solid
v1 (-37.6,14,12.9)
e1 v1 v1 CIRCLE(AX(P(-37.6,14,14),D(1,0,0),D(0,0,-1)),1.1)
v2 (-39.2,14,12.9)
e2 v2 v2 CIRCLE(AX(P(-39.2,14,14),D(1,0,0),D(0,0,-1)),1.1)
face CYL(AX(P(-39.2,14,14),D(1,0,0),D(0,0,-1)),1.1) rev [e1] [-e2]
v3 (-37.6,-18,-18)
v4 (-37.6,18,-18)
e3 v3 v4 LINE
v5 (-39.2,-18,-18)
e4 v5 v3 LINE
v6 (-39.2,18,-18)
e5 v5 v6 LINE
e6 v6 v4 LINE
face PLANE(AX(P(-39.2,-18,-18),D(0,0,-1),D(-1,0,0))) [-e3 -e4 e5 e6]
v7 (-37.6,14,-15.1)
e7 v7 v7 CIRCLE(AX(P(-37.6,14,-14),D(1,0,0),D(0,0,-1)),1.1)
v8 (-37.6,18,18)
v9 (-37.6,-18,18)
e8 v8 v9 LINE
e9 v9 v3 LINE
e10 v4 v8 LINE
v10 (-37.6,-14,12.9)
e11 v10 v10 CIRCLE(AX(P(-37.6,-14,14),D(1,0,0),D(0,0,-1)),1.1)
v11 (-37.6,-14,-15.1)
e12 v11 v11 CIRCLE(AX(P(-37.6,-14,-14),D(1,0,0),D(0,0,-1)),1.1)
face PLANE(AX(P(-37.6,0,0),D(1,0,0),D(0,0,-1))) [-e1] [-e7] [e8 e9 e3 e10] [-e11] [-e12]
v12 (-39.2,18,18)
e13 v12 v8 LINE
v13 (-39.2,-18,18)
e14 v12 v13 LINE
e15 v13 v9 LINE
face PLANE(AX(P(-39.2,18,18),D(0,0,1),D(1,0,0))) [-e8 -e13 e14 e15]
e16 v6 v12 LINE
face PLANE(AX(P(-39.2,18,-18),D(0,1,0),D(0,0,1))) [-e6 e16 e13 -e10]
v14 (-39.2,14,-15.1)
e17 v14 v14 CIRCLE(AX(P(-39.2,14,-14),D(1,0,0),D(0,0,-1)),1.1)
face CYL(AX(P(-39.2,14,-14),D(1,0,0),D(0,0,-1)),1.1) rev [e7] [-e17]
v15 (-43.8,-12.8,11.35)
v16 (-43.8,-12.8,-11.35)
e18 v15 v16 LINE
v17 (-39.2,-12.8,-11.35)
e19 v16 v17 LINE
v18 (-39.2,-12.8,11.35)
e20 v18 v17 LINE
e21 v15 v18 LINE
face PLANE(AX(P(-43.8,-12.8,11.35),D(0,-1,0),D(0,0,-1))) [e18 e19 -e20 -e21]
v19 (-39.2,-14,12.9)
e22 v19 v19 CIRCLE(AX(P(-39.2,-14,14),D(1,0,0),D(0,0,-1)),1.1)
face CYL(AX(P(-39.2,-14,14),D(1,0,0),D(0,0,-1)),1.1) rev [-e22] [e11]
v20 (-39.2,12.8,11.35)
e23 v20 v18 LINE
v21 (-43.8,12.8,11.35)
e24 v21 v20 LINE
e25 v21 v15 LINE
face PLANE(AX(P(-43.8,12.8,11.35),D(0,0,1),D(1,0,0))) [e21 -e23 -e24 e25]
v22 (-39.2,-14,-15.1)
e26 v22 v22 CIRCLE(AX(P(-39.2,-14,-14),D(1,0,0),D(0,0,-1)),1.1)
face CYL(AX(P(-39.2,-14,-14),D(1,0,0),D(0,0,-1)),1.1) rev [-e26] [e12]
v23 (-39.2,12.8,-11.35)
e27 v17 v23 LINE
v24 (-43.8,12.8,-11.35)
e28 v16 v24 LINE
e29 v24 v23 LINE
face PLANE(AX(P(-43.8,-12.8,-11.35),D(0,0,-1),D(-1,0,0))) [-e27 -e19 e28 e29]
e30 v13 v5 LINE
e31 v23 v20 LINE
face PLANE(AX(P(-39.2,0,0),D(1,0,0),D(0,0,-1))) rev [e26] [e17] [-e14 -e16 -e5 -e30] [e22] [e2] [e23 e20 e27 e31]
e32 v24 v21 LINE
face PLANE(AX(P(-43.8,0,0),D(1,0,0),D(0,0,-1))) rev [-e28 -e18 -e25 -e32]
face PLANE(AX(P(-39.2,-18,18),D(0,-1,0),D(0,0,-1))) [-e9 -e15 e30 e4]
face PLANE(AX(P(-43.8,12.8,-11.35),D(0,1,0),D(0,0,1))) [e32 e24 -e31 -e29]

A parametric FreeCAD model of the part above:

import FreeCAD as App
import Part
import Sketcher
from FreeCAD import Vector


def add_polygon(sketch, points):
    """Adds a closed chain of lines whose ends are joined by coincident constraints."""
    first, n = sketch.GeometryCount, len(points)
    for a, b in zip(points, points[1:] + points[:1]):
        sketch.addGeometry(Part.LineSegment(App.Vector(*a, 0), App.Vector(*b, 0)), False)
    for i in range(n):
        sketch.addConstraint(Sketcher.Constraint("Coincident", first + i, 2, first + (i + 1) % n, 1))

doc = App.newDocument("Part")
body = doc.addObject("PartDesign::Body", "Body")

# Sketch on YZ plane
sketch1 = body.newObject("Sketcher::SketchObject", "Sketch")
sketch1.AttachmentSupport = (doc.getObject("YZ_Plane"), [""])
sketch1.MapMode = "FlatFace"
sketch1.AttachmentOffset = App.Placement(Vector(0, 0, -37.6), App.Rotation())
add_polygon(sketch1, [(18, 18), (-18, 18), (-18, -18), (18, -18)])  # lines 0-3
sketch1.addGeometry(Part.Circle(Vector(-14, 14, 0), Vector(0, 0, 1), 1.1), False)  # 4
sketch1.addGeometry(Part.Circle(Vector(-14, -14, 0), Vector(0, 0, 1), 1.1), False)  # 5
sketch1.addGeometry(Part.Circle(Vector(14, 14, 0), Vector(0, 0, 1), 1.1), False)  # 6
sketch1.addGeometry(Part.Circle(Vector(14, -14, 0), Vector(0, 0, 1), 1.1), False)  # 7
sketch1.addConstraint([
    Sketcher.Constraint("Horizontal", 0),
    Sketcher.Constraint("Vertical", 1),
    Sketcher.Constraint("Horizontal", 2),
    Sketcher.Constraint("Vertical", 3),
    Sketcher.Constraint("Equal", 4, 5),
    Sketcher.Constraint("Equal", 5, 6),
    Sketcher.Constraint("Equal", 6, 7),
    Sketcher.Constraint("Symmetric", 5, 3, 6, 3, -1, 1),
    Sketcher.Constraint("Symmetric", 4, 3, 7, 3, -1, 1),
    Sketcher.Constraint("Symmetric", 0, 2, 2, 2, -1, 1),
    Sketcher.Constraint("Symmetric", 4, 3, 6, 3, -2),
    Sketcher.Constraint("Equal", 2, 1),
    Sketcher.Constraint("Diameter", 4, 2.2),
    Sketcher.Constraint("DistanceX", 0, 2, 0, 1, 36.0),
    Sketcher.Constraint("DistanceX", 4, 3, -1, 1, 14.0),
    Sketcher.Constraint("DistanceY", -1, 1, 4, 3, 14.0),
])
pad1 = body.newObject("PartDesign::Pad", "Pad")
pad1.Profile = sketch1
pad1.Length = 1.6
pad1.Reversed = True

# Sketch on YZ plane
sketch2 = body.newObject("Sketcher::SketchObject", "Sketch001")
sketch2.AttachmentSupport = (doc.getObject("YZ_Plane"), [""])
sketch2.MapMode = "FlatFace"
sketch2.AttachmentOffset = App.Placement(Vector(0, 0, -39.2), App.Rotation())
add_polygon(sketch2, [(12.8, 11.35), (-12.8, 11.35), (-12.8, -11.35), (12.8, -11.35)])  # lines 0-3
sketch2.addConstraint([
    Sketcher.Constraint("Horizontal", 0),
    Sketcher.Constraint("Vertical", 1),
    Sketcher.Constraint("Horizontal", 2),
    Sketcher.Constraint("Vertical", 3),
    Sketcher.Constraint("Symmetric", 0, 2, 2, 2, -1, 1),
    Sketcher.Constraint("DistanceX", 0, 2, 0, 1, 25.6),
    Sketcher.Constraint("DistanceY", 1, 2, 1, 1, 22.7),
])
pad2 = body.newObject("PartDesign::Pad", "Pad001")
pad2.Profile = sketch2
pad2.Length = 4.6
pad2.Reversed = True

doc.recompute()
